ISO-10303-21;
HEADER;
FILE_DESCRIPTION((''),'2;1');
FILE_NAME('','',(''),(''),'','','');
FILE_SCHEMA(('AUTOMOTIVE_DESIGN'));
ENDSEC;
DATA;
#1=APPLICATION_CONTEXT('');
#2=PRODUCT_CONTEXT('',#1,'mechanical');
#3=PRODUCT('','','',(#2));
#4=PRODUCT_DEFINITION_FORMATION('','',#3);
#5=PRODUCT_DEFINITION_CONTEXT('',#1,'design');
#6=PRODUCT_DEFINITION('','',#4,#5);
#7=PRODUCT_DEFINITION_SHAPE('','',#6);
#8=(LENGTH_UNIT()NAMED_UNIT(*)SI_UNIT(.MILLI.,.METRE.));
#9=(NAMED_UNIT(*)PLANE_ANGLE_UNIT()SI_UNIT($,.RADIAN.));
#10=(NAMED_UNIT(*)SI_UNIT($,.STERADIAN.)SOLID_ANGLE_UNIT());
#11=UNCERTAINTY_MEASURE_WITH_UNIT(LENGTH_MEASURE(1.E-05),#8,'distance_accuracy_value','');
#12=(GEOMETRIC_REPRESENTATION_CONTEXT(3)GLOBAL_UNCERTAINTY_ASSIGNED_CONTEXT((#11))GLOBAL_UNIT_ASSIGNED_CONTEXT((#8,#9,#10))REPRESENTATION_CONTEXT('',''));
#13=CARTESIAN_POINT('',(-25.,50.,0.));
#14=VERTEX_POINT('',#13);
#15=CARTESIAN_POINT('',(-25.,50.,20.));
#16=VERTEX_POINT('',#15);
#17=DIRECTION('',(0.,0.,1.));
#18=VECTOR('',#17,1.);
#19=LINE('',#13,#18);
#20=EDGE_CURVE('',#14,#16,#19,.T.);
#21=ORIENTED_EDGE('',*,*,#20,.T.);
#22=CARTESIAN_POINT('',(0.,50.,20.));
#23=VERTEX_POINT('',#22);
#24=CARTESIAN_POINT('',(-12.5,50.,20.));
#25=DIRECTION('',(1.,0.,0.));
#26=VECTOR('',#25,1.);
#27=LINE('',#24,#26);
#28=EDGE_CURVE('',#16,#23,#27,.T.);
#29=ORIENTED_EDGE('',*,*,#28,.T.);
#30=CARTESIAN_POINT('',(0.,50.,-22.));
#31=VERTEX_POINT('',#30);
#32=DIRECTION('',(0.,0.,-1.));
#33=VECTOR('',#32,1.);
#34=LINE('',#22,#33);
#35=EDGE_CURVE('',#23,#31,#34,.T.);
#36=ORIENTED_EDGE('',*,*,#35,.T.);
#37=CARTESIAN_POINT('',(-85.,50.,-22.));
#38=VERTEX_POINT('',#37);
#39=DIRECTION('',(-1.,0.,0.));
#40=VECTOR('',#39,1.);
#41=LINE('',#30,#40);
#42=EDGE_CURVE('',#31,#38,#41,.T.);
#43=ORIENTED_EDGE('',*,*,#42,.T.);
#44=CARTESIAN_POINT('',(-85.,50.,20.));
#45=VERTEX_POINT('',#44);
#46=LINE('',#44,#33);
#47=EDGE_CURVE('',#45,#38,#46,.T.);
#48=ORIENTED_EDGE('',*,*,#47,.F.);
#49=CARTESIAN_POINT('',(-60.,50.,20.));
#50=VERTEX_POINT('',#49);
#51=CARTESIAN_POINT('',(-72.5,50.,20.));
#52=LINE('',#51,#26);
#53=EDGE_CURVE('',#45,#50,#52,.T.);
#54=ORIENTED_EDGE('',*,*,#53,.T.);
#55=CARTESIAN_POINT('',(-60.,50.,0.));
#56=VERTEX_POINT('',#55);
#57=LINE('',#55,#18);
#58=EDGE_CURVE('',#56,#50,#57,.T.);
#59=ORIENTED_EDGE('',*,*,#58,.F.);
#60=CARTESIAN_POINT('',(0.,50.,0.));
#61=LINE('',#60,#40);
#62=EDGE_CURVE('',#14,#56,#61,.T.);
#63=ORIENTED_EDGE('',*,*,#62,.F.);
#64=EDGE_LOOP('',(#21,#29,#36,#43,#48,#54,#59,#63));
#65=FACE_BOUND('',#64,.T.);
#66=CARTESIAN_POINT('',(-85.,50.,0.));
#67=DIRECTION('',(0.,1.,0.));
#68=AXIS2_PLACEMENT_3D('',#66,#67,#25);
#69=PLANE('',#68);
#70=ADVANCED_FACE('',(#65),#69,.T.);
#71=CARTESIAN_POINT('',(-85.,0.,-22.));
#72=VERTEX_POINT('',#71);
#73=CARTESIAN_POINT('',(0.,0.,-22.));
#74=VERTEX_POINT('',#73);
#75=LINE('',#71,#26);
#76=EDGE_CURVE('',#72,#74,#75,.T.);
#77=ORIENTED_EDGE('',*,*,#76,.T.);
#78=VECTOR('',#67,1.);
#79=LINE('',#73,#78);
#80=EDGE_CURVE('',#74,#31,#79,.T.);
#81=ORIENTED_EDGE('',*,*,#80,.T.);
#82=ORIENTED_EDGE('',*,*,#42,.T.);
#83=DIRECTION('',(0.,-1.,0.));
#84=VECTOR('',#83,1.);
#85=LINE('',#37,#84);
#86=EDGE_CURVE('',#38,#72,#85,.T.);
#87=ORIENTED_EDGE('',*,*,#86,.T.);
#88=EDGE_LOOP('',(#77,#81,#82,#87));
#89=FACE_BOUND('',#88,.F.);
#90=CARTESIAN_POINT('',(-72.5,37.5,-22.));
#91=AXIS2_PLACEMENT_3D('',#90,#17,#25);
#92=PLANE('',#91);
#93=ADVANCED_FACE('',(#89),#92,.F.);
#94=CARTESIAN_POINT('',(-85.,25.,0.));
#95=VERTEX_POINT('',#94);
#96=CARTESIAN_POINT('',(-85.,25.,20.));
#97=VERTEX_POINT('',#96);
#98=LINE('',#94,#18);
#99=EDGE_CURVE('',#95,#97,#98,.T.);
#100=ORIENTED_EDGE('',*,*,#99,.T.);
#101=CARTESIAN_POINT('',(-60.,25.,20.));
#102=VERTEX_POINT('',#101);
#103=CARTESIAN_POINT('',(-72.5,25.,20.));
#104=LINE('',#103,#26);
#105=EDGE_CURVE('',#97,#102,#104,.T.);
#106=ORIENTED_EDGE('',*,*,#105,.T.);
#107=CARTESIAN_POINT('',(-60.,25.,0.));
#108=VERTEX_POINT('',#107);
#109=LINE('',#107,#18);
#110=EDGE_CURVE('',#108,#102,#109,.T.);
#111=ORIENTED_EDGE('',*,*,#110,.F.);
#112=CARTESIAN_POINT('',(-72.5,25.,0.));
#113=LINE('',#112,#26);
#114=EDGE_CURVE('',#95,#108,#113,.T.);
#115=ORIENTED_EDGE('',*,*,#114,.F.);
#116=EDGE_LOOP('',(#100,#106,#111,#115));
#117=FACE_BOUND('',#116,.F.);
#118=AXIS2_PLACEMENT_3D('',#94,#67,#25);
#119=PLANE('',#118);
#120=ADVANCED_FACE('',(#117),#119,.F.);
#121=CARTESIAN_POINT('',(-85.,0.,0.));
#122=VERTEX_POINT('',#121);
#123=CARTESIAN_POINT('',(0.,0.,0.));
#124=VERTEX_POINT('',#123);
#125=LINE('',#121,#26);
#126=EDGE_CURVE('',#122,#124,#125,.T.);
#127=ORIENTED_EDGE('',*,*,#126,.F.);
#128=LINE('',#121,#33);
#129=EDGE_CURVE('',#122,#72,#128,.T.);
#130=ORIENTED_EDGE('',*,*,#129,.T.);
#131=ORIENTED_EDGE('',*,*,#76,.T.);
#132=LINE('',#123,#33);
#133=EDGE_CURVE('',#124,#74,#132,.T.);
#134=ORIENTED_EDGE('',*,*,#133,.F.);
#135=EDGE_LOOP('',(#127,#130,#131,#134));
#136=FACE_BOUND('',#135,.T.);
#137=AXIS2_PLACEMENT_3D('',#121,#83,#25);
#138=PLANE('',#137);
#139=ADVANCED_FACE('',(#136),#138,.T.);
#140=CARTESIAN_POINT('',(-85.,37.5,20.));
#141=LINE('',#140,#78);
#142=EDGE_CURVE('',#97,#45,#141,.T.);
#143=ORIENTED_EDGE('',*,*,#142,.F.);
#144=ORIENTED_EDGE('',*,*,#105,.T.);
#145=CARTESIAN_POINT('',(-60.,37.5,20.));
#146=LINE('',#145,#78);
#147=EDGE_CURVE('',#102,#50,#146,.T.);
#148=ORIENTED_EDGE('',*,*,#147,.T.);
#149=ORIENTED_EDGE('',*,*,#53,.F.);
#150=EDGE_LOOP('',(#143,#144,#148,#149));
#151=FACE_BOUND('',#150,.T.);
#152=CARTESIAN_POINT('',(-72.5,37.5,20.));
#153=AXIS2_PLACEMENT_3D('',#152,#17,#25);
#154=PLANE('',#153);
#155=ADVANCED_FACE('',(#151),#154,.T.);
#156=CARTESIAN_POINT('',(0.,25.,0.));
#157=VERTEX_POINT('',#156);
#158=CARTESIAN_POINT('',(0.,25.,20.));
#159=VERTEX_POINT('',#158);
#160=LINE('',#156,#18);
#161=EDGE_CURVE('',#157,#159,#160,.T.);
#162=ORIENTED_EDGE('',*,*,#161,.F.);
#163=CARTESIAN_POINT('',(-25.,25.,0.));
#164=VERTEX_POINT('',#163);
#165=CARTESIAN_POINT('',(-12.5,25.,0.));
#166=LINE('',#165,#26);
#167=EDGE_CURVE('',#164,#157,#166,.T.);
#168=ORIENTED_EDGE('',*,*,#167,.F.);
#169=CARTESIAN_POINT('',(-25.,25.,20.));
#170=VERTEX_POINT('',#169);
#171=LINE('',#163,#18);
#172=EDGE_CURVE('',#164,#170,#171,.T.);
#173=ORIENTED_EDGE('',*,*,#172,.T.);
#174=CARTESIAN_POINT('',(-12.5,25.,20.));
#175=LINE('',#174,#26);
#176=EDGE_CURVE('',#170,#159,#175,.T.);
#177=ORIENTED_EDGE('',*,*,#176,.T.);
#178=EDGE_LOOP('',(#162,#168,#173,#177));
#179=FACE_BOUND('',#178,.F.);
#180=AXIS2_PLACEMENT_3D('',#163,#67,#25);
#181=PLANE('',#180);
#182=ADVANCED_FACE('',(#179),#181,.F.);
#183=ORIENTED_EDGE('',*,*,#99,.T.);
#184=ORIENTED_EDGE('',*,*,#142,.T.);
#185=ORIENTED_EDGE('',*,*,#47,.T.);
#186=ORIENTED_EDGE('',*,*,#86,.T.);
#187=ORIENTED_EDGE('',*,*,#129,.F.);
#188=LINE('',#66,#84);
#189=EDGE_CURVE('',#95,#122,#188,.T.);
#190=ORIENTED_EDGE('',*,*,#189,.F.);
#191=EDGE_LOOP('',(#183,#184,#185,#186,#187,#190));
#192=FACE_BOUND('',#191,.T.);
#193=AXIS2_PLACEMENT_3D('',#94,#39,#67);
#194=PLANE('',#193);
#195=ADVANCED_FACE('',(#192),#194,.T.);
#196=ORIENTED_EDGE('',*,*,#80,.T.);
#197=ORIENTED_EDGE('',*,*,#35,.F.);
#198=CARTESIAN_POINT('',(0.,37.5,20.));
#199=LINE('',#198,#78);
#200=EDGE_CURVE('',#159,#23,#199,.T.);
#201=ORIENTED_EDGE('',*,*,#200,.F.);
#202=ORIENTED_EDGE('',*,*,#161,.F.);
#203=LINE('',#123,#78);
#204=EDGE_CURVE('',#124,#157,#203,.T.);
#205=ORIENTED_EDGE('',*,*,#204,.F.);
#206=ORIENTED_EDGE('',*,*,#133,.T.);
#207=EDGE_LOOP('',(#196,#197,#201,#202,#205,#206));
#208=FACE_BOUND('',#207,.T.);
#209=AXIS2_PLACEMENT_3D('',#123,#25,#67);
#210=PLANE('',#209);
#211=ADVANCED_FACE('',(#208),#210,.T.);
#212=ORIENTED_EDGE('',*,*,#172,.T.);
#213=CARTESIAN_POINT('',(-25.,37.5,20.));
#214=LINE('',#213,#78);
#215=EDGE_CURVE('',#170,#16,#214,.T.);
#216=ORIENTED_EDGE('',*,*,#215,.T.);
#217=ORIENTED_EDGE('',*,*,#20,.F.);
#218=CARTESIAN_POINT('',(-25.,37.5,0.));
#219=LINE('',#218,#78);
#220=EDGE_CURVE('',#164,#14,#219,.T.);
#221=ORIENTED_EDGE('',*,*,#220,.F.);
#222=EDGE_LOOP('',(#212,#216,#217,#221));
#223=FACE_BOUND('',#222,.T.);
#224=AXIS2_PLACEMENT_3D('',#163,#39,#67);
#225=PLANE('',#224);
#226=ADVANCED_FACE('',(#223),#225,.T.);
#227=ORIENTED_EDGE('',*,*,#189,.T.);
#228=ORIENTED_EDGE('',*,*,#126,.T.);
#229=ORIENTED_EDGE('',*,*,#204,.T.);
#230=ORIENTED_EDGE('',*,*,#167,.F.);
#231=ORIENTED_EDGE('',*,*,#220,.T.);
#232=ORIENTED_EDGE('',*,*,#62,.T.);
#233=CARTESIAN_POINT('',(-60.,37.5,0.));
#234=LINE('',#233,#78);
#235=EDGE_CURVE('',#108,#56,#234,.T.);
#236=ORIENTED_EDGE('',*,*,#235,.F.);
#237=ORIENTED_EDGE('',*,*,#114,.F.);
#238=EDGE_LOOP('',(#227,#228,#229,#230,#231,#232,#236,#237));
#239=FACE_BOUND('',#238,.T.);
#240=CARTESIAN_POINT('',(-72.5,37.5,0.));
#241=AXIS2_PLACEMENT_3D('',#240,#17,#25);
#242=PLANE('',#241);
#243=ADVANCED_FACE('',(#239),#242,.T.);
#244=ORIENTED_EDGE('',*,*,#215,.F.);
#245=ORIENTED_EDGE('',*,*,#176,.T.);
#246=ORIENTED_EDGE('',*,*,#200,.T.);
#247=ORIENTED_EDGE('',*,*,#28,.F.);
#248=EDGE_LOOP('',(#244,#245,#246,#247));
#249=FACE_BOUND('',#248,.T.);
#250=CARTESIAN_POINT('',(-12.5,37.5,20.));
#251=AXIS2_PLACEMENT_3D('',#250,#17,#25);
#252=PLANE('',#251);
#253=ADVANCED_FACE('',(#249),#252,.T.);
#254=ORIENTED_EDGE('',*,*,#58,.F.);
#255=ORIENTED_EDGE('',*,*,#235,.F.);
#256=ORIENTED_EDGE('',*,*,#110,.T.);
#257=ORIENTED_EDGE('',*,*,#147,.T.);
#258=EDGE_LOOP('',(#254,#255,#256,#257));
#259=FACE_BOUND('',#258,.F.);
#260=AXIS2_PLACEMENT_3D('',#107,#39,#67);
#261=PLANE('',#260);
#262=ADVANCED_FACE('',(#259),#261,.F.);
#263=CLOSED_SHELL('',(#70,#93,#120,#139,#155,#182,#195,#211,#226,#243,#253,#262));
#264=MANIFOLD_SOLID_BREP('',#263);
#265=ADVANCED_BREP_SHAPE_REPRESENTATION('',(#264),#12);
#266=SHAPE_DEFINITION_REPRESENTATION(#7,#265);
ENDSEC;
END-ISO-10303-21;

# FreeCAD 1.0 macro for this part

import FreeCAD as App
import Part
import Sketcher

V = App.Vector
Q = App.Units.Quantity


def add_polygon(sketch, points):
    """Adds a closed chain of lines whose ends are joined by coincident constraints."""
    first, n = sketch.GeometryCount, len(points)
    for a, b in zip(points, points[1:] + points[:1]):
        sketch.addGeometry(Part.LineSegment(App.Vector(*a, 0), App.Vector(*b, 0)), False)
    for i in range(n):
        sketch.addConstraint(Sketcher.Constraint("Coincident", first + i, 2, first + (i + 1) % n, 1))

doc = App.newDocument("Part")
body = doc.addObject("PartDesign::Body", "Body")

# Sketch on XY plane
sketch1 = body.newObject("Sketcher::SketchObject", "Sketch")
sketch1.AttachmentSupport = (doc.getObject("XY_Plane"), [""])
sketch1.MapMode = "FlatFace"
add_polygon(sketch1, [(-85, 50), (-85, 0), (0, 0), (0, 50)])  # lines 0-3
sketch1.addConstraint([
    Sketcher.Constraint("Vertical", 0),
    Sketcher.Constraint("Horizontal", 1),
    Sketcher.Constraint("Vertical", 2),
    Sketcher.Constraint("Horizontal", 3),
    Sketcher.Constraint("Coincident", 1, 2, -1, 1),
    Sketcher.Constraint("DistanceX", 1, 1, 1, 2, Q("85 mm")),
    Sketcher.Constraint("DistanceY", 0, 2, 0, 1, Q("50 mm")),
])
pad1 = body.newObject("PartDesign::Pad", "Pad")
pad1.Profile = sketch1
pad1.Length = 22
pad1.Reversed = True

# Sketch on XY plane
sketch2 = body.newObject("Sketcher::SketchObject", "Sketch001")
sketch2.AttachmentSupport = (doc.getObject("XY_Plane"), [""])
sketch2.MapMode = "FlatFace"
add_polygon(sketch2, [(-85, 50), (-85, 25), (-60, 25), (-60, 50)])  # lines 0-3
add_polygon(sketch2, [(-25, 50), (-25, 25), (0, 25), (0, 50)])  # lines 4-7
sketch2.addConstraint([
    Sketcher.Constraint("Vertical", 0),
    Sketcher.Constraint("Horizontal", 1),
    Sketcher.Constraint("Vertical", 2),
    Sketcher.Constraint("Horizontal", 3),
    Sketcher.Constraint("Vertical", 4),
    Sketcher.Constraint("Horizontal", 5),
    Sketcher.Constraint("Vertical", 6),
    Sketcher.Constraint("Horizontal", 7),
    Sketcher.Constraint("PointOnObject", 5, 2, -2),
    Sketcher.Constraint("Horizontal", 1, 2, 4, 2),
    Sketcher.Constraint("Horizontal", 3, 2, 6, 2),
    Sketcher.Constraint("Equal", 3, 5),
    Sketcher.Constraint("Equal", 7, 0),
    Sketcher.Constraint("DistanceX", 1, 1, 1, 2, Q("25 mm")),
    Sketcher.Constraint("DistanceX", 0, 2, -1, 1, Q("85 mm")),
    Sketcher.Constraint("DistanceY", -1, 1, 0, 2, Q("25 mm")),
])
pad2 = body.newObject("PartDesign::Pad", "Pad001")
pad2.Profile = sketch2
pad2.Length = 20

doc.recompute()
